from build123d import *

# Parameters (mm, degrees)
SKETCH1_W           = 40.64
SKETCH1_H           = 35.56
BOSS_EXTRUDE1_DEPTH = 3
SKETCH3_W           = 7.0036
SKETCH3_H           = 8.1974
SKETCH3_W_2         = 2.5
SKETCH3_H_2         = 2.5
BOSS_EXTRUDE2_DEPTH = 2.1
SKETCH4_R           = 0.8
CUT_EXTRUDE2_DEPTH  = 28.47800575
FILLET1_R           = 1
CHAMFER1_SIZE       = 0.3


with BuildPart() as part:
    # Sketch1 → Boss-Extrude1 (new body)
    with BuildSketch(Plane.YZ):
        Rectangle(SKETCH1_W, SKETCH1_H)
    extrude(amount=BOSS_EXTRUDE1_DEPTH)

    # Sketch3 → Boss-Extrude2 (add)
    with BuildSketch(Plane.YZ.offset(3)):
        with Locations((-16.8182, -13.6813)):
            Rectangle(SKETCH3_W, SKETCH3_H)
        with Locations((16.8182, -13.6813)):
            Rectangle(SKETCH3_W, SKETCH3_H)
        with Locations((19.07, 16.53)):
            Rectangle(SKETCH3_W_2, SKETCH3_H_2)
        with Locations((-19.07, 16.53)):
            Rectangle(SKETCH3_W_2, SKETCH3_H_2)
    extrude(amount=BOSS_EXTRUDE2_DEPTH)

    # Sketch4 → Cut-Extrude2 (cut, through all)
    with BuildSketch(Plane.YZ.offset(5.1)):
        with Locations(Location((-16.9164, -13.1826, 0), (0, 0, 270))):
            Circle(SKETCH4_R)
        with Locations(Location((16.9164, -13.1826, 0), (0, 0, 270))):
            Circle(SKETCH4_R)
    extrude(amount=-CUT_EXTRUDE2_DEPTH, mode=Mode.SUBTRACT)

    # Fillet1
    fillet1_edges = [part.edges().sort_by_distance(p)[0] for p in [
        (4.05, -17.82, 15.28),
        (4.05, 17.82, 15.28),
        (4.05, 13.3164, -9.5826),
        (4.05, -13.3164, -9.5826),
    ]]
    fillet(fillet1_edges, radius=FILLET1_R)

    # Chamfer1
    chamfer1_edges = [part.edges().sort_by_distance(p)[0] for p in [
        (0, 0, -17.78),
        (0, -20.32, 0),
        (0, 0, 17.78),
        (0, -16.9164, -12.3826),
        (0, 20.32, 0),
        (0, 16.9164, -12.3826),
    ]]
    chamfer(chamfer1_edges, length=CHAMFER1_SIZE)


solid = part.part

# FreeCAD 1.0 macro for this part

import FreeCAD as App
import Part
import Sketcher

V = App.Vector
Q = App.Units.Quantity


def edges_at(feature, points):
    """Names of the edges that pass closest to the given points."""
    edges = feature.Shape.Edges
    near = lambda p: min(range(len(edges)), key=lambda i: edges[i].distToShape(Part.Vertex(*p))[0])
    return sorted({f"Edge{near(p) + 1}" for p in points})


def add_polygon(sketch, points):
    """Adds a closed chain of lines whose ends are joined by coincident constraints."""
    first, n = sketch.GeometryCount, len(points)
    for a, b in zip(points, points[1:] + points[:1]):
        sketch.addGeometry(Part.LineSegment(App.Vector(*a, 0), App.Vector(*b, 0)), False)
    for i in range(n):
        sketch.addConstraint(Sketcher.Constraint("Coincident", first + i, 2, first + (i + 1) % n, 1))

doc = App.newDocument("Part")
body = doc.addObject("PartDesign::Body", "Body")

# Sketch on YZ plane
sketch1 = body.newObject("Sketcher::SketchObject", "Sketch")
sketch1.AttachmentSupport = (doc.getObject("YZ_Plane"), [""])
sketch1.MapMode = "FlatFace"
add_polygon(sketch1, [(-20, 18), (-20, -18), (20, -18), (20, 18)])  # lines 0-3
sketch1.addConstraint([
    Sketcher.Constraint("Vertical", 0),
    Sketcher.Constraint("Horizontal", 1),
    Sketcher.Constraint("Vertical", 2),
    Sketcher.Constraint("Horizontal", 3),
    Sketcher.Constraint("Symmetric", 0, 2, 2, 2, -1, 1),
    Sketcher.Constraint("DistanceX", 1, 1, 1, 2, Q("40.64 mm")),
    Sketcher.Constraint("DistanceY", 0, 2, 0, 1, Q("35.56 mm")),
])
pad1 = body.newObject("PartDesign::Pad", "Pad")
pad1.Profile = sketch1
pad1.Length = 3

# Sketch on YZ plane
sketch2 = body.newObject("Sketcher::SketchObject", "Sketch001")
sketch2.AttachmentSupport = (doc.getObject("YZ_Plane"), [""])
sketch2.MapMode = "FlatFace"
sketch2.AttachmentOffset = App.Placement(V(0, 0, 3), App.Rotation())
add_polygon(sketch2, [(-20.3, -9.6), (-20.3, -17.8), (-13.3, -17.8), (-13.3, -9.6)])  # lines 0-3
add_polygon(sketch2, [(13.3, -9.6), (13.3, -17.8), (20.3, -17.8), (20.3, -9.6)])  # lines 4-7
add_polygon(sketch2, [(17.8, 17.8), (17.8, 15.3), (20.3, 15.3), (20.3, 17.8)])  # lines 8-11
add_polygon(sketch2, [(-20.3, 17.8), (-20.3, 15.3), (-17.8, 15.3), (-17.8, 17.8)])  # lines 12-15
sketch2.addConstraint([
    Sketcher.Constraint("Vertical", 0),
    Sketcher.Constraint("Horizontal", 1),
    Sketcher.Constraint("Vertical", 2),
    Sketcher.Constraint("Horizontal", 3),
    Sketcher.Constraint("Vertical", 4),
    Sketcher.Constraint("Horizontal", 5),
    Sketcher.Constraint("Vertical", 6),
    Sketcher.Constraint("Horizontal", 7),
    Sketcher.Constraint("Vertical", 8),
    Sketcher.Constraint("Horizontal", 9),
    Sketcher.Constraint("Vertical", 10),
    Sketcher.Constraint("Horizontal", 11),
    Sketcher.Constraint("Vertical", 12),
    Sketcher.Constraint("Horizontal", 13),
    Sketcher.Constraint("Vertical", 14),
    Sketcher.Constraint("Horizontal", 15),
    Sketcher.Constraint("Symmetric", 0, 2, 10, 2, -1, 1),
    Sketcher.Constraint("Symmetric", 5, 2, 15, 2, -1, 1),
    Sketcher.Constraint("Symmetric", 1, 2, 4, 2, -2),
    Sketcher.Constraint("Symmetric", 3, 2, 6, 2, -2),
    Sketcher.Constraint("Symmetric", 8, 2, 13, 2, -2),
    Sketcher.Constraint("Equal", 15, 8),
    Sketcher.Constraint("DistanceX", 9, 1, 9, 2, Q("2.5 mm")),
    Sketcher.Constraint("DistanceX", 0, 2, -1, 1, Q("20.32 mm")),
    Sketcher.Constraint("DistanceY", 0, 2, -1, 1, Q("17.78 mm")),
    Sketcher.Constraint("DistanceX", 1, 1, 1, 2, Q("7.0036 mm")),
    Sketcher.Constraint("DistanceY", 0, 2, 0, 1, Q("8.1974 mm")),
])
pad2 = body.newObject("PartDesign::Pad", "Pad001")
pad2.Profile = sketch2
pad2.Length = 2.1

# Sketch on YZ plane
sketch3 = body.newObject("Sketcher::SketchObject", "Sketch002")
sketch3.AttachmentSupport = (doc.getObject("YZ_Plane"), [""])
sketch3.MapMode = "FlatFace"
sketch3.AttachmentOffset = App.Placement(V(0, 0, 5.1), App.Rotation())
sketch3.addGeometry([
    Part.Circle(V(-16.9, -13.2, 0), V(0, 0, 1), 0.8),
    Part.Circle(V(16.9, -13.2, 0), V(0, 0, 1), 0.8),
], False)
sketch3.addConstraint([
    Sketcher.Constraint("Equal", 0, 1),
    Sketcher.Constraint("Symmetric", 0, 3, 1, 3, -2),
    Sketcher.Constraint("Diameter", 0, Q("1.6 mm")),
    Sketcher.Constraint("DistanceX", 0, 3, -1, 1, Q("16.9164 mm")),
    Sketcher.Constraint("DistanceY", 0, 3, -1, 1, Q("13.1826 mm")),
])
pocket1 = body.newObject("PartDesign::Pocket", "Pocket")
pocket1.Profile = sketch3
pocket1.Type = "ThroughAll"
doc.recompute()

fillet = body.newObject("PartDesign::Fillet", "Fillet")
fillet.Base = (pocket1, edges_at(pocket1, [
    (4.05, -17.82, 15.28),
    (4.05, 17.82, 15.28),
    (4.05, 13.316, -9.583),
    (4.05, -13.316, -9.583),
]))
fillet.Radius = 1
doc.recompute()

chamfer = body.newObject("PartDesign::Chamfer", "Chamfer")
chamfer.Base = (fillet, edges_at(fillet, [
    (0, 0, -17.78),
    (0, -20.32, 0),
    (0, 0, 17.78),
    (0, -16.916, -12.383),
    (0, 20.32, 0),
    (0, 16.916, -12.383),
]))
chamfer.Size = 0.3

doc.recompute()
